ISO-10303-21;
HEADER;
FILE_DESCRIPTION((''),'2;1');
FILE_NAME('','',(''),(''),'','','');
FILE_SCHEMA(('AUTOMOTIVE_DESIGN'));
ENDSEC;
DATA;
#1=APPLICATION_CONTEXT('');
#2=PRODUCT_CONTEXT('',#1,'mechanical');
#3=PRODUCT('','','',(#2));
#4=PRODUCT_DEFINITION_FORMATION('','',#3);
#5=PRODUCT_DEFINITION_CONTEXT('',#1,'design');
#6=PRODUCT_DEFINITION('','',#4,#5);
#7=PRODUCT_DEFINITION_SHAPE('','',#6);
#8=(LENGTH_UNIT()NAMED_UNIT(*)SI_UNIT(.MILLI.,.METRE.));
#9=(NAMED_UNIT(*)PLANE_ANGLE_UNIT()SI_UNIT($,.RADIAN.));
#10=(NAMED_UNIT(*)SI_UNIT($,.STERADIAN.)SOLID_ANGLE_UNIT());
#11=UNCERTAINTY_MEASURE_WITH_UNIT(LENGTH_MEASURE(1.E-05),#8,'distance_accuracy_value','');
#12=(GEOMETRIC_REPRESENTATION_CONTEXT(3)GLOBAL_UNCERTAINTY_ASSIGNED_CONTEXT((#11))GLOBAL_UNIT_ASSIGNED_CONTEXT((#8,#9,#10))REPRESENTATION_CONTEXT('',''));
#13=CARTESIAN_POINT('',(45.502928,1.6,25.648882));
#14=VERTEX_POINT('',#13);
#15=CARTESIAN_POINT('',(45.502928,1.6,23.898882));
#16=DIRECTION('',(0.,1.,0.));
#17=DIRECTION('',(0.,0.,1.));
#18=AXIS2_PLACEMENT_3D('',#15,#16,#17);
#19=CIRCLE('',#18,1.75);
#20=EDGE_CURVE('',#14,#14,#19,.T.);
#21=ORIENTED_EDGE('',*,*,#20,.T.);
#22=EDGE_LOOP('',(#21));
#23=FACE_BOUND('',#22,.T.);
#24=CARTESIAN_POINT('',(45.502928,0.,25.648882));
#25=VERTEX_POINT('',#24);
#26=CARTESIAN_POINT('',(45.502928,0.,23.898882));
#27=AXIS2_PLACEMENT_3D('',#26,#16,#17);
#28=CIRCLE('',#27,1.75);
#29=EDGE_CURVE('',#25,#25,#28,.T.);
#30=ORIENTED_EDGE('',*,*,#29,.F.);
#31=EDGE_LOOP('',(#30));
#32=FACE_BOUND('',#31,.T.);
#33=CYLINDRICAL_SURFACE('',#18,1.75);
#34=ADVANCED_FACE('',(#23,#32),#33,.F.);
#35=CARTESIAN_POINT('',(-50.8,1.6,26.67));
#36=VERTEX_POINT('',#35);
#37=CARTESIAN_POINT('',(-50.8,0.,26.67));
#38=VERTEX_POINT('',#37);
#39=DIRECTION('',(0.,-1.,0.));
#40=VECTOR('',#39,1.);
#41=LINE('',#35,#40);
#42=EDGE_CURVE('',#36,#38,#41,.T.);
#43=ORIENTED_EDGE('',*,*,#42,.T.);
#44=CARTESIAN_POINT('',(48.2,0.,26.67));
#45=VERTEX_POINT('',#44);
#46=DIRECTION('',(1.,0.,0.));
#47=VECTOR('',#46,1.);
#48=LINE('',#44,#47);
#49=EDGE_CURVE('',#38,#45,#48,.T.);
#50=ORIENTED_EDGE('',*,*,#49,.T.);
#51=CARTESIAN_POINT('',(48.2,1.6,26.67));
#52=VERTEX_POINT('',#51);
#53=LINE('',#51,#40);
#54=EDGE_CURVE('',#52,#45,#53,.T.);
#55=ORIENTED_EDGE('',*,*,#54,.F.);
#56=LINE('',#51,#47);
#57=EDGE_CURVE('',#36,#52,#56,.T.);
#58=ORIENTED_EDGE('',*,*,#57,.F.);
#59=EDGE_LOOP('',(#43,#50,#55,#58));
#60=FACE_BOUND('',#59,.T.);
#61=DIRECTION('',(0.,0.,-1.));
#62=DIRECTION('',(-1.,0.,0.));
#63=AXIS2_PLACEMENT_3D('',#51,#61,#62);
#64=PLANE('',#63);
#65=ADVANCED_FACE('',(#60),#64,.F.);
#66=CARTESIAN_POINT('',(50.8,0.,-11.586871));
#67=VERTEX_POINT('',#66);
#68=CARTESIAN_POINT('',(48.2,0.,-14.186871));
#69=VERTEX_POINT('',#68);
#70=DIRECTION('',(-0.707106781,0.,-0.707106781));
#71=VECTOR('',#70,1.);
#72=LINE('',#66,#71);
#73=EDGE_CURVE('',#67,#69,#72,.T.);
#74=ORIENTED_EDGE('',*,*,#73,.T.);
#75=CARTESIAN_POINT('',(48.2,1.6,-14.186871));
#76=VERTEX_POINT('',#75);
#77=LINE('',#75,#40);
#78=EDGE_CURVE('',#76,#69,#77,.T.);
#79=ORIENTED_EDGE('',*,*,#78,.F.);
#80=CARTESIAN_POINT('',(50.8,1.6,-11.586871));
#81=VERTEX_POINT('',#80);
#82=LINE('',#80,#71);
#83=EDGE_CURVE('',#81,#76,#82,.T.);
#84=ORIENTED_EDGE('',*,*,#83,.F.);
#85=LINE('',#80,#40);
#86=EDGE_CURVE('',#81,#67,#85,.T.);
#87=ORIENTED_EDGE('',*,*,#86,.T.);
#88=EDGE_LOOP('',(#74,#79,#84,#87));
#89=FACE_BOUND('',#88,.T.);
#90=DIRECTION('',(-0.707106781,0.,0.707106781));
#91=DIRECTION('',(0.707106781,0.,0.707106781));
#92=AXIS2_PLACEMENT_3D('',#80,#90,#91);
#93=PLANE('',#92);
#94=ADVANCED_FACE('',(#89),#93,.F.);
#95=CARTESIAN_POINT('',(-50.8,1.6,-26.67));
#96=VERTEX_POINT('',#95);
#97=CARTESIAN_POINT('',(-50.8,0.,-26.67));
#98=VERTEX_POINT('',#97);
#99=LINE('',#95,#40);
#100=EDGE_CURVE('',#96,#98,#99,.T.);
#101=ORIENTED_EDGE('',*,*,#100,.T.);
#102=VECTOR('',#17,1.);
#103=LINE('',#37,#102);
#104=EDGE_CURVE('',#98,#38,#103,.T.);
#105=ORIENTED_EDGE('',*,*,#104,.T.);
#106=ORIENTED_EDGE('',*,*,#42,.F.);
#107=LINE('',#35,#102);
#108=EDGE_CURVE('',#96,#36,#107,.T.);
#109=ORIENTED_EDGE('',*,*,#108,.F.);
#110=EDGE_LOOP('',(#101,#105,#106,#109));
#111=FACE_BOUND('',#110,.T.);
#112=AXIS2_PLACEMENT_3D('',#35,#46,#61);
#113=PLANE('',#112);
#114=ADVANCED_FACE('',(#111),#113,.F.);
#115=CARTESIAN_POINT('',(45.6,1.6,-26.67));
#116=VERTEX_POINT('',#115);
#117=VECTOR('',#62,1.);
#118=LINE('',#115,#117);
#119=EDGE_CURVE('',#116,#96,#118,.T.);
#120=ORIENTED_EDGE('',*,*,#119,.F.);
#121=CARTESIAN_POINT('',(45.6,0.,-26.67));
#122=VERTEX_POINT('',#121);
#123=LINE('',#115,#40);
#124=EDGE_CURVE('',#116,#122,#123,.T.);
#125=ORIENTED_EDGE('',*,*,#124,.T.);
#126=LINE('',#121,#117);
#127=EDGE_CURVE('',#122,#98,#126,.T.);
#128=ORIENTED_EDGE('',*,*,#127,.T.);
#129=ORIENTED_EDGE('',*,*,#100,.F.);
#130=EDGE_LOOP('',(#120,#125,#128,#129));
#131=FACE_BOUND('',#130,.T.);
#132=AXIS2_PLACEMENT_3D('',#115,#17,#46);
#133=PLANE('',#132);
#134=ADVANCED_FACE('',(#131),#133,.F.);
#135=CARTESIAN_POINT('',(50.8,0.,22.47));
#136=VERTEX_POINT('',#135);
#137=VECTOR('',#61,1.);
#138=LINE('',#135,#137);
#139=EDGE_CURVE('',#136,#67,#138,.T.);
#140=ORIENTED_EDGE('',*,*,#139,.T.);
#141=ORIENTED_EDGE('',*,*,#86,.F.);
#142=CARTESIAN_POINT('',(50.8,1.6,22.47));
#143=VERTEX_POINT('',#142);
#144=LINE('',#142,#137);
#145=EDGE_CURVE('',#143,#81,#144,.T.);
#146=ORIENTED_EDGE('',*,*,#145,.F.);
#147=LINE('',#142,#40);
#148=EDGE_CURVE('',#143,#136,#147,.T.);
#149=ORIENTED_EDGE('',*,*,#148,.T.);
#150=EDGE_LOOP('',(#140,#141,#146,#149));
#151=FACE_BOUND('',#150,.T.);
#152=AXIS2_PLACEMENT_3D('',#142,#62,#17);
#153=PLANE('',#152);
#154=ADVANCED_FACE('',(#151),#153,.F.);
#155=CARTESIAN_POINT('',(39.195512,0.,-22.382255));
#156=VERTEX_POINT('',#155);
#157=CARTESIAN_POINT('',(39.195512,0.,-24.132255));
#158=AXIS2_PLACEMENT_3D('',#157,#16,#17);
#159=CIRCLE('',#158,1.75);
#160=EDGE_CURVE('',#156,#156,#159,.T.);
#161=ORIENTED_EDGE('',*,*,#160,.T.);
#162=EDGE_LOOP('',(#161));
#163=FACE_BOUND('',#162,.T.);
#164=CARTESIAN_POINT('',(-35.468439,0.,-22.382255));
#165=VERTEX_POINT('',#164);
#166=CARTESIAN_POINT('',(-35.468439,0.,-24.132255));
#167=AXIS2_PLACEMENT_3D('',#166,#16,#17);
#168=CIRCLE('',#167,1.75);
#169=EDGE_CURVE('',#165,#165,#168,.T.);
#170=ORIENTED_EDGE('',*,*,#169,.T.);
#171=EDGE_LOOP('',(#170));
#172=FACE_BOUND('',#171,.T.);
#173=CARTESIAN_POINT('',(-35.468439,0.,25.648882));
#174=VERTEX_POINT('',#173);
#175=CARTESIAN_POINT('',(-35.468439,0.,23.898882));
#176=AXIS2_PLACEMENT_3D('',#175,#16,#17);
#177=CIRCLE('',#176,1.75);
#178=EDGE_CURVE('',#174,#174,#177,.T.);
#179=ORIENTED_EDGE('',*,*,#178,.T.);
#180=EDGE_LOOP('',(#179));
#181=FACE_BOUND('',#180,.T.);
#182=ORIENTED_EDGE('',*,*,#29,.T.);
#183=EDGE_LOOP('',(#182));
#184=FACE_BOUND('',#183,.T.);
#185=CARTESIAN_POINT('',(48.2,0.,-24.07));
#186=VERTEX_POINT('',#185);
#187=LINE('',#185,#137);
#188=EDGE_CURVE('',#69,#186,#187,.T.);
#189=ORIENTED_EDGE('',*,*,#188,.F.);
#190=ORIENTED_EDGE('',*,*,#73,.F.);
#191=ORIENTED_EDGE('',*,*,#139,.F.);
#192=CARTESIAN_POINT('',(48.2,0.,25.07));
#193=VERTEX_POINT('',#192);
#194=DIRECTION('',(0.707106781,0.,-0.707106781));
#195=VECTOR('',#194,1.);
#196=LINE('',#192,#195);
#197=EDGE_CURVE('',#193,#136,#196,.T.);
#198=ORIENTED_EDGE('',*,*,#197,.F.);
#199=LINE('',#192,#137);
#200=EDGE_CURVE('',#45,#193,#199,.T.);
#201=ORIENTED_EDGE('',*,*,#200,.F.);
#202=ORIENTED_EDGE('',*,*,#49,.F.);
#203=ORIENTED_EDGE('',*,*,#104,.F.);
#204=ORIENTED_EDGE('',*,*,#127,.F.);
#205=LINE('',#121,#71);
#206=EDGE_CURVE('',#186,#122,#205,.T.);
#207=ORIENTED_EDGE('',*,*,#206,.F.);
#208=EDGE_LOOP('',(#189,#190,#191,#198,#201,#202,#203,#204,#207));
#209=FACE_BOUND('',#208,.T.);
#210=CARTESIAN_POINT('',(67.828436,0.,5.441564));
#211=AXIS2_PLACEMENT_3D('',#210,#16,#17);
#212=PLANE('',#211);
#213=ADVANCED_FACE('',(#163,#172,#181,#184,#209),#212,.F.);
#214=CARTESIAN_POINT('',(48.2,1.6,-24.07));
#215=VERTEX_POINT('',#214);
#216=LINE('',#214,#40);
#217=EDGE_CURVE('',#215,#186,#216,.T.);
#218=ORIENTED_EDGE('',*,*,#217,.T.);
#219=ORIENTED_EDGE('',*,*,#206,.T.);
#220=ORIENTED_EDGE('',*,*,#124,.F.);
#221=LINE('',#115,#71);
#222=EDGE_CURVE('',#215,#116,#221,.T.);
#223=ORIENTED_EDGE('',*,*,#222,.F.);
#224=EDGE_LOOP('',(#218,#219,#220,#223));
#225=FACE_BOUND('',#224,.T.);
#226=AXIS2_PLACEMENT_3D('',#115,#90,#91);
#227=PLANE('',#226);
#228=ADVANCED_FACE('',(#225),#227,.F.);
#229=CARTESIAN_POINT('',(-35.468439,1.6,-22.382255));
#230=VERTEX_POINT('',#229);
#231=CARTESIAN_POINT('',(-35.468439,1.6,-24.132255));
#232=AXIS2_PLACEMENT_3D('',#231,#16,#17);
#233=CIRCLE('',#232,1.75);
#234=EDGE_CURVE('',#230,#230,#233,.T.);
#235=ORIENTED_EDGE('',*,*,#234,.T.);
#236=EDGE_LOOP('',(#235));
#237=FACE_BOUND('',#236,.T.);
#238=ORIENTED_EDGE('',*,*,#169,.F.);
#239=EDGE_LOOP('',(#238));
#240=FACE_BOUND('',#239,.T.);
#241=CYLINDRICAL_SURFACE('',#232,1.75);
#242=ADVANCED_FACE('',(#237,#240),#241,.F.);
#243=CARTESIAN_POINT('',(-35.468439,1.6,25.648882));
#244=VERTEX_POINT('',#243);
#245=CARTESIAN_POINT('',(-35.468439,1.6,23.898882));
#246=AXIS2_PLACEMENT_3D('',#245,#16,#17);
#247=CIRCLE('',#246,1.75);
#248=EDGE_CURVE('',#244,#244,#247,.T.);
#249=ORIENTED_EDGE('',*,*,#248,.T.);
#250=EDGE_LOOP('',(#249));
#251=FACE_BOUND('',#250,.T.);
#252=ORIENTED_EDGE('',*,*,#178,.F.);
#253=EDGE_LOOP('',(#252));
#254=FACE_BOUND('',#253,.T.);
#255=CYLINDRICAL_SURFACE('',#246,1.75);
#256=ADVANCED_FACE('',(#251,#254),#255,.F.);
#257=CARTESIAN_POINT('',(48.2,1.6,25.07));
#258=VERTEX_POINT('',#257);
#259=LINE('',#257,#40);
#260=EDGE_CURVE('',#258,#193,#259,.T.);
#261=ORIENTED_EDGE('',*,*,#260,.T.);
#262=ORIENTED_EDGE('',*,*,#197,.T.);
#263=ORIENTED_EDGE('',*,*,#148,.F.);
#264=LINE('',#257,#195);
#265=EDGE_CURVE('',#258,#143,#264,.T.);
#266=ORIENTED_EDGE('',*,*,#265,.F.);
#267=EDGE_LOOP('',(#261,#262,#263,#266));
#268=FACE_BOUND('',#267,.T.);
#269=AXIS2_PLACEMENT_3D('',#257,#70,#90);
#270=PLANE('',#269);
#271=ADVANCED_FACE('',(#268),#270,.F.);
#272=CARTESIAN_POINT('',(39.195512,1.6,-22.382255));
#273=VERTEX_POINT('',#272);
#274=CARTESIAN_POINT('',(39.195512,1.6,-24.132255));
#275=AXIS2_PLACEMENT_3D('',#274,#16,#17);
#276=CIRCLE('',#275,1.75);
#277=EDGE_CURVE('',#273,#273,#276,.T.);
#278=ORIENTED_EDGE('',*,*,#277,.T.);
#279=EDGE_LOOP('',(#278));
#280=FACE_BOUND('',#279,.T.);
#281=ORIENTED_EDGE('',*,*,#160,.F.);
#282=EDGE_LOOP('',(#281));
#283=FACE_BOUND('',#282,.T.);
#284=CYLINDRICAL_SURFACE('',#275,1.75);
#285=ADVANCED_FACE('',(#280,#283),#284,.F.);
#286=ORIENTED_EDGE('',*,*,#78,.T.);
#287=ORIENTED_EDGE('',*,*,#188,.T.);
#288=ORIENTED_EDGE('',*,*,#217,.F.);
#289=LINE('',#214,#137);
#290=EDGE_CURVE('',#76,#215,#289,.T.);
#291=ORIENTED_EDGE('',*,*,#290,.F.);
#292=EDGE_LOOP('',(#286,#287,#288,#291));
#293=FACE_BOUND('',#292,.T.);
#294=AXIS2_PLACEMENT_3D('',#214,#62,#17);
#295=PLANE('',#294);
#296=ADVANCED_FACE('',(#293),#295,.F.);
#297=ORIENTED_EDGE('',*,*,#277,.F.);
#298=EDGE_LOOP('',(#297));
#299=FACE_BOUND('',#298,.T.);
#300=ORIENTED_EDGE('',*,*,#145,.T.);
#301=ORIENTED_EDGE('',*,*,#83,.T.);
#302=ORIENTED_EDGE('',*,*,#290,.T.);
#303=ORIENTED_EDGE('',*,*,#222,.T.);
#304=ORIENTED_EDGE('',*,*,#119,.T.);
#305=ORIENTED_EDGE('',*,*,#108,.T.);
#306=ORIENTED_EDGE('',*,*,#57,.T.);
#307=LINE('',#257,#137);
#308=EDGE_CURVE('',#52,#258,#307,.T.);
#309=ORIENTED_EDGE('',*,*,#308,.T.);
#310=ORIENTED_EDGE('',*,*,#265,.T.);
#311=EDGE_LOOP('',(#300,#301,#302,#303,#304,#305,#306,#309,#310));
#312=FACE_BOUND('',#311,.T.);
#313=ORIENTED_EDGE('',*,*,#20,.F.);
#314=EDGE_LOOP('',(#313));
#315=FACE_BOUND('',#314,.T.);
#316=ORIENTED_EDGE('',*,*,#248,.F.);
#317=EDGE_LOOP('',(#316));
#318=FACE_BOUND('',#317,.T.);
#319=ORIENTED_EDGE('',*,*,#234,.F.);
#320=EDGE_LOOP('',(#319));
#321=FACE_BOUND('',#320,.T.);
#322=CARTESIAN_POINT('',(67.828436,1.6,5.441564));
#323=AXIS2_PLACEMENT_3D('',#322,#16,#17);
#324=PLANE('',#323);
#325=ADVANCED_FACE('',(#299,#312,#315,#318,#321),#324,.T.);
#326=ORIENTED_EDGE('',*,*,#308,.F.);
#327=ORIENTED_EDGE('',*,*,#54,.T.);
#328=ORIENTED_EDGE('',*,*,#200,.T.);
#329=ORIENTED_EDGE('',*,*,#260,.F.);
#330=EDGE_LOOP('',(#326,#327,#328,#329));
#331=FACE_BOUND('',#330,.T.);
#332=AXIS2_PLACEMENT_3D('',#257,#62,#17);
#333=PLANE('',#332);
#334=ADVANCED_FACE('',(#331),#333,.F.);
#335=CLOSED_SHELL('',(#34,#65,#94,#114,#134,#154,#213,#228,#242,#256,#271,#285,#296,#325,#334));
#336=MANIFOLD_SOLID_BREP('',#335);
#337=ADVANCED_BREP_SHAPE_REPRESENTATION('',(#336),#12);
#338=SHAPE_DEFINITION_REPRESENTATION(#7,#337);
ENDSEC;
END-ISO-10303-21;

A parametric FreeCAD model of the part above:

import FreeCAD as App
import Part
import Sketcher
Q = App.Units.Quantity


def add_polygon(sketch, points):
    """Adds a closed chain of lines whose ends are joined by coincident constraints."""
    first, n = sketch.GeometryCount, len(points)
    for a, b in zip(points, points[1:] + points[:1]):
        sketch.addGeometry(Part.LineSegment(App.Vector(*a, 0), App.Vector(*b, 0)), False)
    for i in range(n):
        sketch.addConstraint(Sketcher.Constraint("Coincident", first + i, 2, first + (i + 1) % n, 1))

doc = App.newDocument("Part")
body = doc.addObject("PartDesign::Body", "Body")

# Sketch on XZ plane
sketch1 = body.newObject("Sketcher::SketchObject", "Sketch")
sketch1.AttachmentSupport = (doc.getObject("XZ_Plane"), [""])
sketch1.MapMode = "FlatFace"
add_polygon(sketch1, [(50.8, 22.5), (50.8, -11.6), (48.2, -14.2), (48.2, -24.1), (45.6, -26.7), (-50.8, -26.7), (-50.8, 26.7), (48.2, 26.7), (48.2, 25.1)])  # lines 0-8
sketch1.addConstraint(Sketcher.Constraint("Vertical", 0))
sketch1.addConstraint(Sketcher.Constraint("Vertical", 2))
sketch1.addConstraint(Sketcher.Constraint("Horizontal", 4))
sketch1.addConstraint(Sketcher.Constraint("Vertical", 5))
sketch1.addConstraint(Sketcher.Constraint("Horizontal", 6))
sketch1.addConstraint(Sketcher.Constraint("Vertical", 7))
sketch1.addConstraint(Sketcher.Constraint("Parallel", 1, 3))
sketch1.addConstraint(Sketcher.Constraint("Perpendicular", 3, 8))
sketch1.addConstraint(Sketcher.Constraint("Vertical", 2, 2, 6, 2))
sketch1.addConstraint(Sketcher.Constraint("Equal", 1, 3))
sketch1.addConstraint(Sketcher.Constraint("Equal", 3, 8))
sketch1.addConstraint(Sketcher.Constraint("DistanceX", 6, 1, 6, 2, Q("99 mm")))
sketch1.addConstraint(Sketcher.Constraint("DistanceX", 4, 2, 4, 1, Q("96.4 mm")))
sketch1.addConstraint(Sketcher.Constraint("DistanceY", 7, 2, 7, 1, Q("1.6 mm")))
sketch1.addConstraint(Sketcher.Constraint("DistanceY", 5, 1, 5, 2, Q("53.34 mm")))
sketch1.addConstraint(Sketcher.Constraint("DistanceX", -1, 1, 0, 2, Q("50.8 mm")))
sketch1.addConstraint(Sketcher.Constraint("DistanceY", 2, 2, -1, 1, Q("24.07 mm")))
sketch1.addConstraint(Sketcher.Constraint("DistanceY", 0, 2, 0, 1, Q("34.056871 mm")))
pad1 = body.newObject("PartDesign::Pad", "Pad")
pad1.Profile = sketch1
pad1.Length = 1.6
pad1.Reversed = True

# Sketch on XZ plane
sketch2 = body.newObject("Sketcher::SketchObject", "Sketch001")
sketch2.AttachmentSupport = (doc.getObject("XZ_Plane"), [""])
sketch2.MapMode = "FlatFace"
sketch2.AttachmentOffset = App.Placement(App.Vector(0, 0, -1.6), App.Rotation())
sketch2.addGeometry(Part.Circle(App.Vector(-35.5, -24.1, 0), App.Vector(0, 0, 1), 1.8), False)
sketch2.addGeometry(Part.Circle(App.Vector(-35.5, 23.9, 0), App.Vector(0, 0, 1), 1.8), False)
sketch2.addGeometry(Part.Circle(App.Vector(45.5, 23.9, 0), App.Vector(0, 0, 1), 1.8), False)
sketch2.addGeometry(Part.Circle(App.Vector(39.2, -24.1, 0), App.Vector(0, 0, 1), 1.8), False)
sketch2.addConstraint(Sketcher.Constraint("Equal", 0, 1))
sketch2.addConstraint(Sketcher.Constraint("Equal", 1, 2))
sketch2.addConstraint(Sketcher.Constraint("Equal", 2, 3))
sketch2.addConstraint(Sketcher.Constraint("Horizontal", 1, 3, 2, 3))
sketch2.addConstraint(Sketcher.Constraint("Horizontal", 0, 3, 3, 3))
sketch2.addConstraint(Sketcher.Constraint("Vertical", 0, 3, 1, 3))
sketch2.addConstraint(Sketcher.Constraint("Diameter", 0, Q("3.5 mm")))
sketch2.addConstraint(Sketcher.Constraint("DistanceX", 0, 3, -1, 1, Q("35.468439 mm")))
sketch2.addConstraint(Sketcher.Constraint("DistanceY", -1, 1, 1, 3, Q("23.898882 mm")))
sketch2.addConstraint(Sketcher.Constraint("DistanceX", -1, 1, 2, 3, Q("45.502928 mm")))
sketch2.addConstraint(Sketcher.Constraint("DistanceX", -1, 1, 3, 3, Q("39.195512 mm")))
sketch2.addConstraint(Sketcher.Constraint("DistanceY", 0, 3, -1, 1, Q("24.132255 mm")))
doc.recompute()
hole = body.newObject("PartDesign::Hole", "Hole")
hole.Profile = sketch2
hole.ThreadType = "None"
hole.Diameter = 3.5
hole.DepthType = "Dimension"
hole.Depth = 3
hole.DrillPoint = "Angled"
hole.DrillPointAngle = 118
hole.Reversed = True

doc.recompute()
